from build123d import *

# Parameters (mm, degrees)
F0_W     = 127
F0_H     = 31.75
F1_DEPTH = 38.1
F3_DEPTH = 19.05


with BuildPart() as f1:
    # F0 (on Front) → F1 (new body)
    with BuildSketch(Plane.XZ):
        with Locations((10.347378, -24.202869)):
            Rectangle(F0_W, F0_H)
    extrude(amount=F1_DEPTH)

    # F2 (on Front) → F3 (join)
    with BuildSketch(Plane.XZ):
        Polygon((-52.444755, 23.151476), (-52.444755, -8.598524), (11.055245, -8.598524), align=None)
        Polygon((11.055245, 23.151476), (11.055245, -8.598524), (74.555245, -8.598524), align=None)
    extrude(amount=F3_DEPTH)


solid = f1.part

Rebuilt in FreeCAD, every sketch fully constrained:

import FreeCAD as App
import Part
import Sketcher
from FreeCAD import Vector
Q = App.Units.Quantity


def add_polygon(sketch, points):
    """Adds a closed chain of lines whose ends are joined by coincident constraints."""
    first, n = sketch.GeometryCount, len(points)
    for a, b in zip(points, points[1:] + points[:1]):
        sketch.addGeometry(Part.LineSegment(App.Vector(*a, 0), App.Vector(*b, 0)), False)
    for i in range(n):
        sketch.addConstraint(Sketcher.Constraint("Coincident", first + i, 2, first + (i + 1) % n, 1))

doc = App.newDocument("Part")
body = doc.addObject("PartDesign::Body", "Body")

sketch1 = body.newObject("Sketcher::SketchObject", "Sketch")
sketch1.AttachmentSupport = (doc.getObject("XZ_Plane"), [""])
sketch1.MapMode = "FlatFace"
add_polygon(sketch1, [(-53.152622, -8.327869), (-53.152622, -40.077869), (73.847378, -40.077869), (73.847378, -8.327869)])
sketch1.addConstraint([
    Sketcher.Constraint("Vertical", 0),
    Sketcher.Constraint("Horizontal", 1),
    Sketcher.Constraint("Vertical", 2),
    Sketcher.Constraint("Horizontal", 3),
    Sketcher.Constraint("DistanceX", 1, 1, 1, 2, Q("5 in")),
    Sketcher.Constraint("DistanceY", 0, 2, 0, 1, Q("1.25 in")),
    Sketcher.Constraint("DistanceY", 0, 2, -1, 1, 40.077869),
    Sketcher.Constraint("DistanceX", -1, 1, 1, 2, 73.847378),
])
pad1 = body.newObject("PartDesign::Pad", "Pad")
pad1.Profile = sketch1
pad1.Length = Q("1.5 in")

sketch2 = body.newObject("Sketcher::SketchObject", "Sketch001")
sketch2.AttachmentSupport = (doc.getObject("XZ_Plane"), [""])
sketch2.MapMode = "FlatFace"
add_polygon(sketch2, [(-52.444755, 23.151476), (-52.444755, -8.598524), (11.055245, -8.598524)])
add_polygon(sketch2, [(11.055245, 23.151476), (11.055245, -8.598524), (74.555245, -8.598524)])
sketch2.addConstraint([
    Sketcher.Constraint("Vertical", 0),
    Sketcher.Constraint("Horizontal", 1),
    Sketcher.Constraint("Vertical", 3),
    Sketcher.Constraint("Horizontal", 4),
    Sketcher.Constraint("Coincident", 3, 2, 1, 2),
    Sketcher.Constraint("Parallel", 2, 5),
    Sketcher.Constraint("Horizontal", 2, 2, 5, 2),
    Sketcher.Constraint("DistanceX", 1, 1, 1, 2, Q("2.5 in")),
    Sketcher.Constraint("DistanceY", 0, 2, 0, 1, Q("1.25 in")),
    Sketcher.Constraint("DistanceX", 0, 2, -1, 1, 52.444755),
    Sketcher.Constraint("DistanceY", 0, 2, -1, 1, 8.598524),
])
pad2 = body.newObject("PartDesign::Pad", "Pad001")
pad2.Profile = sketch2
pad2.Length = Q("0.75 in")

doc.recompute()
